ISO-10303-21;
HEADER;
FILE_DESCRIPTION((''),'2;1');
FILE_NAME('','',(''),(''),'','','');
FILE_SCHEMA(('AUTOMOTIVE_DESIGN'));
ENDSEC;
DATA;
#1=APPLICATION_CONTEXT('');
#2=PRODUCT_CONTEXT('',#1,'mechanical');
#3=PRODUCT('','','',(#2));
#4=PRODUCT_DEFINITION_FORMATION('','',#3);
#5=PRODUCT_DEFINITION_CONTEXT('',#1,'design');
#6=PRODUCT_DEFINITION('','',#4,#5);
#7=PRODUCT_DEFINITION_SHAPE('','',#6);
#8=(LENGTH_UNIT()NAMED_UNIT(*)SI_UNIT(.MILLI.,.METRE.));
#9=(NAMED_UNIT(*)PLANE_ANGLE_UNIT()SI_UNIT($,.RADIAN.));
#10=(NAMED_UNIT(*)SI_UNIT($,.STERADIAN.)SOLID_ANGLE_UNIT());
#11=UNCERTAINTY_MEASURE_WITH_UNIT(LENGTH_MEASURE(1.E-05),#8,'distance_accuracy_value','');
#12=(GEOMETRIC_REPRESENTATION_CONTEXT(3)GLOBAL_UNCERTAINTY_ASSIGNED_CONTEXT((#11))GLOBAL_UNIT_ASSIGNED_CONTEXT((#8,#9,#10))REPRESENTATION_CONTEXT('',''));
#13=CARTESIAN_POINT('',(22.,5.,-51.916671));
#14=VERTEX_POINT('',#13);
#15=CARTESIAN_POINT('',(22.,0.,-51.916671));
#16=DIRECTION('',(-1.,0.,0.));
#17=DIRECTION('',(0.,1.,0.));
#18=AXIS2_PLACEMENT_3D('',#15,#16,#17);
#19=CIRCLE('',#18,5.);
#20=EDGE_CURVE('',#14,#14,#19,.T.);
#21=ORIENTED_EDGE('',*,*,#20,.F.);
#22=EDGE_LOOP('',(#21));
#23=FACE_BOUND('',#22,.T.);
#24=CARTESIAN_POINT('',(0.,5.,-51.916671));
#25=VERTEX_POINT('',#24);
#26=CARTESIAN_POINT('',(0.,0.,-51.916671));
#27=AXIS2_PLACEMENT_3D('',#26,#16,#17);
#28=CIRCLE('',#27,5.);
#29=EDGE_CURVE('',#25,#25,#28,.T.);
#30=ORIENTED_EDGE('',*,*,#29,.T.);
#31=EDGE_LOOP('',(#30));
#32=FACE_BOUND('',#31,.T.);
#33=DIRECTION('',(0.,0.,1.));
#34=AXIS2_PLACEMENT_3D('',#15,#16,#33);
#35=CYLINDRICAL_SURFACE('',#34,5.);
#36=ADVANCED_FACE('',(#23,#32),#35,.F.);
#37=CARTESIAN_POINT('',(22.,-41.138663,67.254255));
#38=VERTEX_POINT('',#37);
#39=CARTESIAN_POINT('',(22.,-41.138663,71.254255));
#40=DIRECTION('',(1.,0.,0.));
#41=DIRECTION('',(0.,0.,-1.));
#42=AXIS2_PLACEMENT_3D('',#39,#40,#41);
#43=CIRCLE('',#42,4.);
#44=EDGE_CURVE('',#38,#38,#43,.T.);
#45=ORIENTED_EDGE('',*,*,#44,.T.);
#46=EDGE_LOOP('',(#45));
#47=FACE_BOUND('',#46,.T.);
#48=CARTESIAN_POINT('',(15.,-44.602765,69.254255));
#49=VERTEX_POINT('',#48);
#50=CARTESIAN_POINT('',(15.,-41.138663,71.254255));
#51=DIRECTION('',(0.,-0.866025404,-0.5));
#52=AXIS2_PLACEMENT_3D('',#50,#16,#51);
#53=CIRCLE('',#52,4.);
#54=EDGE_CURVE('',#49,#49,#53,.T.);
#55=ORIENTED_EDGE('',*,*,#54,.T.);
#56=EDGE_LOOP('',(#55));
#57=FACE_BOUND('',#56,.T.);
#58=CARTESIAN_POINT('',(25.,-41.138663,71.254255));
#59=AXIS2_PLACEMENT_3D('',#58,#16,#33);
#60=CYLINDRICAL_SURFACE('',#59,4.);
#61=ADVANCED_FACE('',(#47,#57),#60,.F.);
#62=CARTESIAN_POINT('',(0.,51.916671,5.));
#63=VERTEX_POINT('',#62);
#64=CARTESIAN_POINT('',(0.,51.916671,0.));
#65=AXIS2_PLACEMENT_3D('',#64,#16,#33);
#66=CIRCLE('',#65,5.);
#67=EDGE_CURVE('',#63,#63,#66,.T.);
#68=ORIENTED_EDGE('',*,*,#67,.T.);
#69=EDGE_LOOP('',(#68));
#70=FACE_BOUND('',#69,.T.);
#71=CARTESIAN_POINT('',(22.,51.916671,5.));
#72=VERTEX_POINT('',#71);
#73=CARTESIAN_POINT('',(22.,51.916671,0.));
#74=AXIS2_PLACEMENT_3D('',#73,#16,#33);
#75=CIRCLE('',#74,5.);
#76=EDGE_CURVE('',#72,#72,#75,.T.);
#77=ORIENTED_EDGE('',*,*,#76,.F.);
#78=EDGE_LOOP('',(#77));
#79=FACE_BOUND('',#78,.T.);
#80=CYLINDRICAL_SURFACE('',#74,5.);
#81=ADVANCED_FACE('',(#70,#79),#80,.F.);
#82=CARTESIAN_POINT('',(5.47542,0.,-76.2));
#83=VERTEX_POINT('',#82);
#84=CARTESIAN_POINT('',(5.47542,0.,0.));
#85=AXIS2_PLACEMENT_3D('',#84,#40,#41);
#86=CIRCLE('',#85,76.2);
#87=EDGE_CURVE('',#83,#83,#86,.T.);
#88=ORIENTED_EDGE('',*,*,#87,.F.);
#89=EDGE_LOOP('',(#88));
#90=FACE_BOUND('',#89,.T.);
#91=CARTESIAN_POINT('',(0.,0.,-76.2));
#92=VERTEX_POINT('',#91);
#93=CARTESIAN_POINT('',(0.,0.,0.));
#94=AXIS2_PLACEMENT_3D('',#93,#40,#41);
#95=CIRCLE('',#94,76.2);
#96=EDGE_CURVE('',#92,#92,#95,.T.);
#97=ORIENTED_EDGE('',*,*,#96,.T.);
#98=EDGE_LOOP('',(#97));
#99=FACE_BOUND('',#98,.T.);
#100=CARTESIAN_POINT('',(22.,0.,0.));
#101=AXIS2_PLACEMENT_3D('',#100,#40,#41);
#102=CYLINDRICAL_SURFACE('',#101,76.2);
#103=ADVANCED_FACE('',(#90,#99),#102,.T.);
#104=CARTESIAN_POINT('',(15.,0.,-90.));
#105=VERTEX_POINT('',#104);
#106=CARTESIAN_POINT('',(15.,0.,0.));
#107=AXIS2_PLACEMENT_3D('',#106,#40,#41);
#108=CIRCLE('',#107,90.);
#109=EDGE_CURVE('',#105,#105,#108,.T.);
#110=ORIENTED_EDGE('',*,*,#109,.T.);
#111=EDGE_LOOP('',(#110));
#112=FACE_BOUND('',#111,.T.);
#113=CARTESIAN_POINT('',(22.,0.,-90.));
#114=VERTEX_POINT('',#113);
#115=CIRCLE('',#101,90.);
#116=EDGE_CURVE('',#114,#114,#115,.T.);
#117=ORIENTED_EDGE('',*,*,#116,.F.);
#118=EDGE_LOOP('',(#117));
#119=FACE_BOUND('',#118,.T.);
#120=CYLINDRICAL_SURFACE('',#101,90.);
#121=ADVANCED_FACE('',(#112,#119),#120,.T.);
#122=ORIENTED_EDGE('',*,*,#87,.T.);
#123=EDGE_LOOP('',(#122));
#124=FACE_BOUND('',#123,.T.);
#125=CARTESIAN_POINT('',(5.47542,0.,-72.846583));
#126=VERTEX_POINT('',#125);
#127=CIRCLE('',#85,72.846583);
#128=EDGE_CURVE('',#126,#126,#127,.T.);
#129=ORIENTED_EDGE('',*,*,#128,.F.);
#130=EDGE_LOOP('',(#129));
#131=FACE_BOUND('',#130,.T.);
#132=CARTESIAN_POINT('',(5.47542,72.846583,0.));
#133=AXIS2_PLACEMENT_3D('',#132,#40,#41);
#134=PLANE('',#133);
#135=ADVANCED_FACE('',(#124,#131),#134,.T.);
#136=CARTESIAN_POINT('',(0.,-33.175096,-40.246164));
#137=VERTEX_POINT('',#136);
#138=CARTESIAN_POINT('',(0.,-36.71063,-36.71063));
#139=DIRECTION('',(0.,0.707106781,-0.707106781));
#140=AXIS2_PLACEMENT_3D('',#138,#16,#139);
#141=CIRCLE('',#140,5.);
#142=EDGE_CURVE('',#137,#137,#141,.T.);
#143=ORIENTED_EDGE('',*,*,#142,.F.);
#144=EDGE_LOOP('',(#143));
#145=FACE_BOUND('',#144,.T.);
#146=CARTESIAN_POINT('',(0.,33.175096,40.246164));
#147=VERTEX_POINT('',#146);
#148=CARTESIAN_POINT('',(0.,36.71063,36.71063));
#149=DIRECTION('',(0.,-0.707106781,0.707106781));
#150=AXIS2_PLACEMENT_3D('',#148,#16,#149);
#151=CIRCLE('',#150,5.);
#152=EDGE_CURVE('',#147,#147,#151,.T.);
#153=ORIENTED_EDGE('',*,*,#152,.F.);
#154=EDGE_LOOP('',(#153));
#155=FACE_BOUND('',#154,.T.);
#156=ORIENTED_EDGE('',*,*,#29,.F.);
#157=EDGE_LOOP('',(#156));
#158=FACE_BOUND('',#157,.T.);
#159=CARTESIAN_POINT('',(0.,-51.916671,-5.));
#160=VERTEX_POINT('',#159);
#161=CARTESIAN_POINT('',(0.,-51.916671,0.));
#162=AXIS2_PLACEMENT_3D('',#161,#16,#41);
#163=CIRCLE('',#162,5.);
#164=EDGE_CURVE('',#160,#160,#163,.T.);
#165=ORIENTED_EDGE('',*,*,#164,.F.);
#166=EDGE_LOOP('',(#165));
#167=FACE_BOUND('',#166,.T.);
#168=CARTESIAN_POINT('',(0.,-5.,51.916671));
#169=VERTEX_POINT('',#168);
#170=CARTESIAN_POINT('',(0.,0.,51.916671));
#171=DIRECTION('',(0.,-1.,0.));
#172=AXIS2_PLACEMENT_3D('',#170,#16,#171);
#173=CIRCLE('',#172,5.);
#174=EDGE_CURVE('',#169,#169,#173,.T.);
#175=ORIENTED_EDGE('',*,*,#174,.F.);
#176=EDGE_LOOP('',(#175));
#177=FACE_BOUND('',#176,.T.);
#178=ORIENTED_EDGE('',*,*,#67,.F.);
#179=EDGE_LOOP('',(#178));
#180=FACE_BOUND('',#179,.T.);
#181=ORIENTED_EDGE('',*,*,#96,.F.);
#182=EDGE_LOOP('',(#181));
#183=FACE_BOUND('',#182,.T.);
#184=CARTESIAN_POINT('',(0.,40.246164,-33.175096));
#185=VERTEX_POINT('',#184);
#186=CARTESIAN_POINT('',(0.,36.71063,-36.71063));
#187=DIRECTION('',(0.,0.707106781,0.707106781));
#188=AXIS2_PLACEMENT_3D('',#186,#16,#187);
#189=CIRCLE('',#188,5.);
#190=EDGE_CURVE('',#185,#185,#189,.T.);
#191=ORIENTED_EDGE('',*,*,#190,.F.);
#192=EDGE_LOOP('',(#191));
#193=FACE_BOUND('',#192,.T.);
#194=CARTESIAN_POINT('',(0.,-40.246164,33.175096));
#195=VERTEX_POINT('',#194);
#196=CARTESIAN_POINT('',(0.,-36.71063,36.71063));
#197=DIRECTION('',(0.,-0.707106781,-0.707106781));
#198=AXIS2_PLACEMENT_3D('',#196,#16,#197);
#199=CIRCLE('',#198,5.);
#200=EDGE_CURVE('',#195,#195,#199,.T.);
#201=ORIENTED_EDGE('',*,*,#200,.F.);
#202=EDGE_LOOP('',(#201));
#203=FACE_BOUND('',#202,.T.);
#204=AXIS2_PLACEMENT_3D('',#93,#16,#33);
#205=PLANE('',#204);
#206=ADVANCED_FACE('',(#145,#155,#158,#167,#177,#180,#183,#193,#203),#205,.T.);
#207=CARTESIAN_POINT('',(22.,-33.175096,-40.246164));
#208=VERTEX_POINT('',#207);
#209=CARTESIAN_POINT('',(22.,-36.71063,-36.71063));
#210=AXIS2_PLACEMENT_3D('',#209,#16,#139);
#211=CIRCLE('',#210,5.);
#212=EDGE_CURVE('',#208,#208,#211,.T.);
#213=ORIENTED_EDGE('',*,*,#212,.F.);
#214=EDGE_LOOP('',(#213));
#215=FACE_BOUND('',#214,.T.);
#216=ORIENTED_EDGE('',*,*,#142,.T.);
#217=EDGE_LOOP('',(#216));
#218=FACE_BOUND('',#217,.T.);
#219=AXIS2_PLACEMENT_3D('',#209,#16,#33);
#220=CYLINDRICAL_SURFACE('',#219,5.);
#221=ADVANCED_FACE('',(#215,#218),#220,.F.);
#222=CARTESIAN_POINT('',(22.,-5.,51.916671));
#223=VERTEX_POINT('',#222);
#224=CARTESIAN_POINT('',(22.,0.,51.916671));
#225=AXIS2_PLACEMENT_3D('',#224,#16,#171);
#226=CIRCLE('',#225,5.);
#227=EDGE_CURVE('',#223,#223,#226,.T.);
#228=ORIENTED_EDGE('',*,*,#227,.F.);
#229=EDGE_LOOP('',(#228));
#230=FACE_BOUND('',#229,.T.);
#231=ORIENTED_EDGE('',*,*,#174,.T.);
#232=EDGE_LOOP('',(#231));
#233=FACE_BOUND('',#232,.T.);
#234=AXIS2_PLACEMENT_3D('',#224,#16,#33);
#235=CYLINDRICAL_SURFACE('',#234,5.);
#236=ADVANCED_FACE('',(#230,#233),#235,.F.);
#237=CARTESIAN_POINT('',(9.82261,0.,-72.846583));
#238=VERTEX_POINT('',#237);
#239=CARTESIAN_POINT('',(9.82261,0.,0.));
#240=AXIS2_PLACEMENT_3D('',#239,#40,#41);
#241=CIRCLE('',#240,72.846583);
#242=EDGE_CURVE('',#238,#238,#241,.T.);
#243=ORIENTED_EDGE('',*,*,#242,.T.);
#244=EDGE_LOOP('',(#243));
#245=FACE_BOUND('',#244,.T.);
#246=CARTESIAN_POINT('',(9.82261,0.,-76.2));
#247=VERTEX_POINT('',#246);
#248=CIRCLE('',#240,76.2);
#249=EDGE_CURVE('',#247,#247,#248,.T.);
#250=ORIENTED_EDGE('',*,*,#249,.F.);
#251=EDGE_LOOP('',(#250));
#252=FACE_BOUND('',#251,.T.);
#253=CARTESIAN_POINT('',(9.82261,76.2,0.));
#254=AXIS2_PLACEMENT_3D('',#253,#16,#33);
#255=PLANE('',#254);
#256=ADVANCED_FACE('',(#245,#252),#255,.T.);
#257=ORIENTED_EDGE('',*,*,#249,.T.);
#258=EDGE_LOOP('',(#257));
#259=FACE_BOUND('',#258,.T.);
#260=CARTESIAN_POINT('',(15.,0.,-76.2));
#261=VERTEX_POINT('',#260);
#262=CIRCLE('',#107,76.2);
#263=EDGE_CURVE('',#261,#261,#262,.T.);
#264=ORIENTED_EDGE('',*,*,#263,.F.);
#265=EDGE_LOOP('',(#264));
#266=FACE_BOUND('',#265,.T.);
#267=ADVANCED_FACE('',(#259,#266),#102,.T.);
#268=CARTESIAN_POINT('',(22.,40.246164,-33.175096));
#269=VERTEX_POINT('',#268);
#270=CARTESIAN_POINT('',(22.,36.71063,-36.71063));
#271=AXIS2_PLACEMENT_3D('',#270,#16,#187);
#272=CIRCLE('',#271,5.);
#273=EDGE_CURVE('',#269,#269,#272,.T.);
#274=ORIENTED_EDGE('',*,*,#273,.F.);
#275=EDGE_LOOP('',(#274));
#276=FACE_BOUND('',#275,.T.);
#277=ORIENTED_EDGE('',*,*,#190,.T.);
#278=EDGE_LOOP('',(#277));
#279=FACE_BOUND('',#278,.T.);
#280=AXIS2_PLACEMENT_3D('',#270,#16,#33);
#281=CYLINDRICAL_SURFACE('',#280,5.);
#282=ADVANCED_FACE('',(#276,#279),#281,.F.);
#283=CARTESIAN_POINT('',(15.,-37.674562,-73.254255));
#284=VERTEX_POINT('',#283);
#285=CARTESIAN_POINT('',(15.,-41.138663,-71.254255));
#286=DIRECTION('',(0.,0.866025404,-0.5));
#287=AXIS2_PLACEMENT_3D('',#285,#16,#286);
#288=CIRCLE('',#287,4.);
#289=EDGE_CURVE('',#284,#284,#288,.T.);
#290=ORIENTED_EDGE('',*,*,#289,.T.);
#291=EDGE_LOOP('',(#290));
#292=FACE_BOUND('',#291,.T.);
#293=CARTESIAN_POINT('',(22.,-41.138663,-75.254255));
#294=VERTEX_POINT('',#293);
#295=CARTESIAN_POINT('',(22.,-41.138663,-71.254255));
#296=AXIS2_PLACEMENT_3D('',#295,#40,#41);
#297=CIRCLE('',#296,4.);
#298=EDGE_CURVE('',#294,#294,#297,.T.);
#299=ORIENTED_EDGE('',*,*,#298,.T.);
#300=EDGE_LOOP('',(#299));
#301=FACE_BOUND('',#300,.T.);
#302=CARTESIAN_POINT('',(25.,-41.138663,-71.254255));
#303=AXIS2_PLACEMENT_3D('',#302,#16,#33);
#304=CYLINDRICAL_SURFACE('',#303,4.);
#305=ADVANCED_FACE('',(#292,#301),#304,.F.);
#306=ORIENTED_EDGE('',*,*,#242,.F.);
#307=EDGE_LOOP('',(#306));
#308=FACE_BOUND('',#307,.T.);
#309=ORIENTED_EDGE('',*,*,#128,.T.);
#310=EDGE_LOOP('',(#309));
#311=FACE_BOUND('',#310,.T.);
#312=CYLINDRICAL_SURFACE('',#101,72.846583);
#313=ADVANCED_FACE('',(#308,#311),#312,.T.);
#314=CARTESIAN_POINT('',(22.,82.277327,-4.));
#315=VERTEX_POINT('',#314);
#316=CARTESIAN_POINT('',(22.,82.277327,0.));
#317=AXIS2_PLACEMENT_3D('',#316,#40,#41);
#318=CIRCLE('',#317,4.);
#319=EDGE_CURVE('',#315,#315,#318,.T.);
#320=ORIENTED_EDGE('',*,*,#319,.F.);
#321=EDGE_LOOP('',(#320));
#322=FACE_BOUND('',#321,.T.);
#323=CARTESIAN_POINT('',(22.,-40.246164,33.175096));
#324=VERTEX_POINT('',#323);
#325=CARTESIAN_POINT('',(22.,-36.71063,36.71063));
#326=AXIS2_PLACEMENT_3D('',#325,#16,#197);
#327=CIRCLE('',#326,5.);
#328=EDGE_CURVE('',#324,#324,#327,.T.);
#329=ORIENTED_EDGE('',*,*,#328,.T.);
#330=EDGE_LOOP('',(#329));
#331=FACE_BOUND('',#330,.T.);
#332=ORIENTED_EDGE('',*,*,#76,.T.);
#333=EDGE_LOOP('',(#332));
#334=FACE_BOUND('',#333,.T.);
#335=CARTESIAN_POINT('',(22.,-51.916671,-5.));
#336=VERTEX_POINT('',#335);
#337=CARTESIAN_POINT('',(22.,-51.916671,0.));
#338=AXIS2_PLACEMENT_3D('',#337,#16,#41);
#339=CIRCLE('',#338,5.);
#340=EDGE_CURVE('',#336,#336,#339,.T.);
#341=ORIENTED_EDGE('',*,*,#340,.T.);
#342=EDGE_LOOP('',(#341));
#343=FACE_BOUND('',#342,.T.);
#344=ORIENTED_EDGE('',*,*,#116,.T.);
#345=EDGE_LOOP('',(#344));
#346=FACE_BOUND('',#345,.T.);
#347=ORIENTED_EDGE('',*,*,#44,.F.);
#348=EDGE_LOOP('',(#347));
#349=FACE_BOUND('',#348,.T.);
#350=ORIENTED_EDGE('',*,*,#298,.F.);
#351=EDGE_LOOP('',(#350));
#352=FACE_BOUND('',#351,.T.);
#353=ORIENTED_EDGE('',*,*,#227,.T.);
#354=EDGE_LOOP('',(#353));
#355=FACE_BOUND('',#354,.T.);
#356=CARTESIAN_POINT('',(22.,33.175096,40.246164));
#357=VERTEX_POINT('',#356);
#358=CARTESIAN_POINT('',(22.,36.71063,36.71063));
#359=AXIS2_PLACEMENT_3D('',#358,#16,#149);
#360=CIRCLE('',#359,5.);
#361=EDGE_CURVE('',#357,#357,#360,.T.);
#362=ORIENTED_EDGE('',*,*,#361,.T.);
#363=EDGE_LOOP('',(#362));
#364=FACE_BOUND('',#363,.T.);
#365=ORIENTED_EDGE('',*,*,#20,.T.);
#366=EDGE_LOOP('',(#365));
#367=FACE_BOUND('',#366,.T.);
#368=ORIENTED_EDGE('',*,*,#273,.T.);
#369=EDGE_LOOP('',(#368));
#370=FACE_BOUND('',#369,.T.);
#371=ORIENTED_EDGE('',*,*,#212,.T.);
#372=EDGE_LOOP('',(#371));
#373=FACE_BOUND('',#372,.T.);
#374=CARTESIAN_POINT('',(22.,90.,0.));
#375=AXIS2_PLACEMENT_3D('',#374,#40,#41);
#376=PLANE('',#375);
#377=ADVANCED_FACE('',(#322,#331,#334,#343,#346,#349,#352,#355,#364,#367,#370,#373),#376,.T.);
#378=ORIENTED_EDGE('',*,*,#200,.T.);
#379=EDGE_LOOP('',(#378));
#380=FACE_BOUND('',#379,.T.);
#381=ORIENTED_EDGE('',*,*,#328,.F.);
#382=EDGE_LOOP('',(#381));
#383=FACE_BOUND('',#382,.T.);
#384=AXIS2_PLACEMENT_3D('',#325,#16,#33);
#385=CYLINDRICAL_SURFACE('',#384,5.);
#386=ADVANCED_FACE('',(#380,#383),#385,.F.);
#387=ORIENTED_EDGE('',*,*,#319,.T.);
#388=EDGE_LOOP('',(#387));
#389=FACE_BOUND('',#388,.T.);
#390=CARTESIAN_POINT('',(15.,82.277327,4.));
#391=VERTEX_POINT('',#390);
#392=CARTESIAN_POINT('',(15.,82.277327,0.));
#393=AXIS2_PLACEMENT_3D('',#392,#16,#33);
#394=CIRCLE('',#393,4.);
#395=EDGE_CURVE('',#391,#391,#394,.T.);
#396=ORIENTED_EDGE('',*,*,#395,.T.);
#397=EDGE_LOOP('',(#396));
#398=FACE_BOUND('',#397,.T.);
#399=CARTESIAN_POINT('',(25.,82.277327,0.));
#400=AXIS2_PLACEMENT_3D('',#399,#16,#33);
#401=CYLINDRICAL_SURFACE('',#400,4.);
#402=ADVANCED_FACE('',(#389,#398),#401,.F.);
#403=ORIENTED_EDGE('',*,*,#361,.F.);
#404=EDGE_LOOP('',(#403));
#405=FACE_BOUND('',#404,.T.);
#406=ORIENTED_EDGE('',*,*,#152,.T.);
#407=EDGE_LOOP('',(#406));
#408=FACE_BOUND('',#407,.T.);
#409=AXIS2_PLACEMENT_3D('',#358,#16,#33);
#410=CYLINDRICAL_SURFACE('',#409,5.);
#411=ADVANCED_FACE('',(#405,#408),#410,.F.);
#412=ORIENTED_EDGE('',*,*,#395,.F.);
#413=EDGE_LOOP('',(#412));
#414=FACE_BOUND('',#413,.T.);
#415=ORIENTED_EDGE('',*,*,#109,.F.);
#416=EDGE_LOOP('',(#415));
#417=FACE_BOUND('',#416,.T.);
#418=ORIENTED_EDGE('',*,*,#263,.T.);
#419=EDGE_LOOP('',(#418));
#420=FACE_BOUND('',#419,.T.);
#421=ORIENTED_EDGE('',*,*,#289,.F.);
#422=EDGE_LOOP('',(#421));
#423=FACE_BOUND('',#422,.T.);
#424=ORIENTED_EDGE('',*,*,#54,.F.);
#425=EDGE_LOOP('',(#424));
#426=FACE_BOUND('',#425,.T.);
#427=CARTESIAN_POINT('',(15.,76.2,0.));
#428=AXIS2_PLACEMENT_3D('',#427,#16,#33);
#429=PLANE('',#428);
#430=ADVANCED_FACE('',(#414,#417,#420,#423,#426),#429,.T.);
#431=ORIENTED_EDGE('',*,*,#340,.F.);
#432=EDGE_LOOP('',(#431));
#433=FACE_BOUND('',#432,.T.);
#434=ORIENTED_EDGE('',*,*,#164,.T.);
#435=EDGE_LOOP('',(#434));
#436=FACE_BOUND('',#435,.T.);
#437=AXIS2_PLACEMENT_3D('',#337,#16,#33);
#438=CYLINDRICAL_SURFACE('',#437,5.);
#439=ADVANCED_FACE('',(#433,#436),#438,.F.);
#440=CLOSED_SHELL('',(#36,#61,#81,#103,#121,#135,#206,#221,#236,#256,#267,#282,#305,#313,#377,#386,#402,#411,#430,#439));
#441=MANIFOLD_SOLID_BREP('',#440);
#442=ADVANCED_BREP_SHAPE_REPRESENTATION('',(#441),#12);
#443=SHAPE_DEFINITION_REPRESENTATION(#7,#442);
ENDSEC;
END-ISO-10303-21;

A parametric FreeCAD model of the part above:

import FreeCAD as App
import Part
import Sketcher

doc = App.newDocument("Part")
body = doc.addObject("PartDesign::Body", "Body")

sketch1 = body.newObject("Sketcher::SketchObject", "Sketch")
sketch1.AttachmentSupport = (doc.getObject("XY_Plane"), [""])
sketch1.MapMode = "FlatFace"
sketch1.addGeometry(Part.LineSegment(App.Vector(0, 76.2, 0), App.Vector(0, 0, 0)), False)
sketch1.addGeometry(Part.LineSegment(App.Vector(0, 0, 0), App.Vector(22, 0, 0)), False)
sketch1.addGeometry(Part.LineSegment(App.Vector(22, 0, 0), App.Vector(22, 90, 0)), False)
sketch1.addGeometry(Part.LineSegment(App.Vector(22, 90, 0), App.Vector(15, 90, 0)), False)
sketch1.addGeometry(Part.LineSegment(App.Vector(15, 90, 0), App.Vector(15, 76.2, 0)), False)
sketch1.addGeometry(Part.LineSegment(App.Vector(15, 76.2, 0), App.Vector(9.8, 76.2, 0)), False)
sketch1.addGeometry(Part.LineSegment(App.Vector(9.8, 76.2, 0), App.Vector(9.8, 72.8, 0)), False)
sketch1.addGeometry(Part.LineSegment(App.Vector(9.8, 72.8, 0), App.Vector(5.5, 72.8, 0)), False)
sketch1.addGeometry(Part.LineSegment(App.Vector(5.5, 72.8, 0), App.Vector(5.5, 76.2, 0)), False)
sketch1.addGeometry(Part.LineSegment(App.Vector(5.5, 76.2, 0), App.Vector(0, 76.2, 0)), False)
sketch1.addConstraint(Sketcher.Constraint("Coincident", 0, 2, 1, 1))
sketch1.addConstraint(Sketcher.Constraint("Coincident", 1, 2, 2, 1))
sketch1.addConstraint(Sketcher.Constraint("Coincident", 2, 2, 3, 1))
sketch1.addConstraint(Sketcher.Constraint("Coincident", 3, 2, 4, 1))
sketch1.addConstraint(Sketcher.Constraint("Coincident", 4, 2, 5, 1))
sketch1.addConstraint(Sketcher.Constraint("Coincident", 5, 2, 6, 1))
sketch1.addConstraint(Sketcher.Constraint("Coincident", 6, 2, 7, 1))
sketch1.addConstraint(Sketcher.Constraint("Coincident", 7, 2, 8, 1))
sketch1.addConstraint(Sketcher.Constraint("Coincident", 8, 2, 9, 1))
sketch1.addConstraint(Sketcher.Constraint("Coincident", 9, 2, 0, 1))
sketch1.addConstraint(Sketcher.Constraint("Vertical", 0))
sketch1.addConstraint(Sketcher.Constraint("Horizontal", 1))
sketch1.addConstraint(Sketcher.Constraint("Vertical", 2))
sketch1.addConstraint(Sketcher.Constraint("Horizontal", 3))
sketch1.addConstraint(Sketcher.Constraint("Vertical", 4))
sketch1.addConstraint(Sketcher.Constraint("Horizontal", 5))
sketch1.addConstraint(Sketcher.Constraint("Vertical", 6))
sketch1.addConstraint(Sketcher.Constraint("Horizontal", 7))
sketch1.addConstraint(Sketcher.Constraint("Vertical", 8))
sketch1.addConstraint(Sketcher.Constraint("Horizontal", 9))
sketch1.addConstraint(Sketcher.Constraint("Coincident", 0, 2, -1, 1))
sketch1.addConstraint(Sketcher.Constraint("Horizontal", 5, 2, 8, 2))
sketch1.addConstraint(Sketcher.Constraint("DistanceX", 1, 1, 1, 2, 22.0))
sketch1.addConstraint(Sketcher.Constraint("DistanceX", 3, 2, 3, 1, 7.0))
sketch1.addConstraint(Sketcher.Constraint("DistanceY", 2, 1, 2, 2, 90.0))
sketch1.addConstraint(Sketcher.Constraint("DistanceY", 0, 2, 0, 1, 76.2))
sketch1.addConstraint(Sketcher.Constraint("DistanceX", 5, 2, 5, 1, 5.17739))
sketch1.addConstraint(Sketcher.Constraint("DistanceX", 7, 2, 7, 1, 4.34719))
sketch1.addConstraint(Sketcher.Constraint("DistanceY", 6, 2, 6, 1, 3.353417))
revolution = body.newObject("PartDesign::Revolution", "Revolution")
revolution.Profile = sketch1
revolution.ReferenceAxis = (sketch1, ["H_Axis"])
revolution.Angle = 360

sketch2 = body.newObject("Sketcher::SketchObject", "Sketch001")
sketch2.AttachmentSupport = (doc.getObject("YZ_Plane"), [""])
sketch2.MapMode = "FlatFace"
sketch2.AttachmentOffset = App.Placement(App.Vector(0, 0, 15), App.Rotation())
sketch2.addGeometry(Part.Circle(App.Vector(82.3, 0, 0), App.Vector(0, 0, 1), 4), False)
sketch2.addConstraint(Sketcher.Constraint("PointOnObject", 0, 3, -1))
sketch2.addConstraint(Sketcher.Constraint("Diameter", 0, 8.0))
sketch2.addConstraint(Sketcher.Constraint("DistanceX", -1, 1, 0, 3, 82.277327))
pocket1 = body.newObject("PartDesign::Pocket", "Pocket")
pocket1.Profile = sketch2
pocket1.Length = 10
pocket1.Reversed = True
doc.recompute()

polarpattern = body.newObject("PartDesign::PolarPattern", "PolarPattern")
polarpattern.Originals = [pocket1]
polarpattern.Axis = (doc.getObject("X_Axis"), [""])
polarpattern.Angle = 360
polarpattern.Occurrences = 3
body.Tip = polarpattern

sketch3 = body.newObject("Sketcher::SketchObject", "Sketch002")
sketch3.AttachmentSupport = (doc.getObject("YZ_Plane"), [""])
sketch3.MapMode = "FlatFace"
sketch3.addGeometry(Part.Circle(App.Vector(52, 0, 0), App.Vector(0, 0, 1), 5), False)
sketch3.addConstraint(Sketcher.Constraint("PointOnObject", 0, 3, -1))
sketch3.addConstraint(Sketcher.Constraint("Diameter", 0, 10.0))
sketch3.addConstraint(Sketcher.Constraint("DistanceX", -1, 1, 0, 3, 51.916671))
pocket2 = body.newObject("PartDesign::Pocket", "Pocket001")
pocket2.Profile = sketch3
pocket2.Type = "ThroughAll"
pocket2.Reversed = True
doc.recompute()

polarpattern2 = body.newObject("PartDesign::PolarPattern", "PolarPattern001")
polarpattern2.Originals = [pocket2]
polarpattern2.Axis = (doc.getObject("X_Axis"), [""])
polarpattern2.Angle = 360
polarpattern2.Occurrences = 8
body.Tip = polarpattern2

doc.recompute()
